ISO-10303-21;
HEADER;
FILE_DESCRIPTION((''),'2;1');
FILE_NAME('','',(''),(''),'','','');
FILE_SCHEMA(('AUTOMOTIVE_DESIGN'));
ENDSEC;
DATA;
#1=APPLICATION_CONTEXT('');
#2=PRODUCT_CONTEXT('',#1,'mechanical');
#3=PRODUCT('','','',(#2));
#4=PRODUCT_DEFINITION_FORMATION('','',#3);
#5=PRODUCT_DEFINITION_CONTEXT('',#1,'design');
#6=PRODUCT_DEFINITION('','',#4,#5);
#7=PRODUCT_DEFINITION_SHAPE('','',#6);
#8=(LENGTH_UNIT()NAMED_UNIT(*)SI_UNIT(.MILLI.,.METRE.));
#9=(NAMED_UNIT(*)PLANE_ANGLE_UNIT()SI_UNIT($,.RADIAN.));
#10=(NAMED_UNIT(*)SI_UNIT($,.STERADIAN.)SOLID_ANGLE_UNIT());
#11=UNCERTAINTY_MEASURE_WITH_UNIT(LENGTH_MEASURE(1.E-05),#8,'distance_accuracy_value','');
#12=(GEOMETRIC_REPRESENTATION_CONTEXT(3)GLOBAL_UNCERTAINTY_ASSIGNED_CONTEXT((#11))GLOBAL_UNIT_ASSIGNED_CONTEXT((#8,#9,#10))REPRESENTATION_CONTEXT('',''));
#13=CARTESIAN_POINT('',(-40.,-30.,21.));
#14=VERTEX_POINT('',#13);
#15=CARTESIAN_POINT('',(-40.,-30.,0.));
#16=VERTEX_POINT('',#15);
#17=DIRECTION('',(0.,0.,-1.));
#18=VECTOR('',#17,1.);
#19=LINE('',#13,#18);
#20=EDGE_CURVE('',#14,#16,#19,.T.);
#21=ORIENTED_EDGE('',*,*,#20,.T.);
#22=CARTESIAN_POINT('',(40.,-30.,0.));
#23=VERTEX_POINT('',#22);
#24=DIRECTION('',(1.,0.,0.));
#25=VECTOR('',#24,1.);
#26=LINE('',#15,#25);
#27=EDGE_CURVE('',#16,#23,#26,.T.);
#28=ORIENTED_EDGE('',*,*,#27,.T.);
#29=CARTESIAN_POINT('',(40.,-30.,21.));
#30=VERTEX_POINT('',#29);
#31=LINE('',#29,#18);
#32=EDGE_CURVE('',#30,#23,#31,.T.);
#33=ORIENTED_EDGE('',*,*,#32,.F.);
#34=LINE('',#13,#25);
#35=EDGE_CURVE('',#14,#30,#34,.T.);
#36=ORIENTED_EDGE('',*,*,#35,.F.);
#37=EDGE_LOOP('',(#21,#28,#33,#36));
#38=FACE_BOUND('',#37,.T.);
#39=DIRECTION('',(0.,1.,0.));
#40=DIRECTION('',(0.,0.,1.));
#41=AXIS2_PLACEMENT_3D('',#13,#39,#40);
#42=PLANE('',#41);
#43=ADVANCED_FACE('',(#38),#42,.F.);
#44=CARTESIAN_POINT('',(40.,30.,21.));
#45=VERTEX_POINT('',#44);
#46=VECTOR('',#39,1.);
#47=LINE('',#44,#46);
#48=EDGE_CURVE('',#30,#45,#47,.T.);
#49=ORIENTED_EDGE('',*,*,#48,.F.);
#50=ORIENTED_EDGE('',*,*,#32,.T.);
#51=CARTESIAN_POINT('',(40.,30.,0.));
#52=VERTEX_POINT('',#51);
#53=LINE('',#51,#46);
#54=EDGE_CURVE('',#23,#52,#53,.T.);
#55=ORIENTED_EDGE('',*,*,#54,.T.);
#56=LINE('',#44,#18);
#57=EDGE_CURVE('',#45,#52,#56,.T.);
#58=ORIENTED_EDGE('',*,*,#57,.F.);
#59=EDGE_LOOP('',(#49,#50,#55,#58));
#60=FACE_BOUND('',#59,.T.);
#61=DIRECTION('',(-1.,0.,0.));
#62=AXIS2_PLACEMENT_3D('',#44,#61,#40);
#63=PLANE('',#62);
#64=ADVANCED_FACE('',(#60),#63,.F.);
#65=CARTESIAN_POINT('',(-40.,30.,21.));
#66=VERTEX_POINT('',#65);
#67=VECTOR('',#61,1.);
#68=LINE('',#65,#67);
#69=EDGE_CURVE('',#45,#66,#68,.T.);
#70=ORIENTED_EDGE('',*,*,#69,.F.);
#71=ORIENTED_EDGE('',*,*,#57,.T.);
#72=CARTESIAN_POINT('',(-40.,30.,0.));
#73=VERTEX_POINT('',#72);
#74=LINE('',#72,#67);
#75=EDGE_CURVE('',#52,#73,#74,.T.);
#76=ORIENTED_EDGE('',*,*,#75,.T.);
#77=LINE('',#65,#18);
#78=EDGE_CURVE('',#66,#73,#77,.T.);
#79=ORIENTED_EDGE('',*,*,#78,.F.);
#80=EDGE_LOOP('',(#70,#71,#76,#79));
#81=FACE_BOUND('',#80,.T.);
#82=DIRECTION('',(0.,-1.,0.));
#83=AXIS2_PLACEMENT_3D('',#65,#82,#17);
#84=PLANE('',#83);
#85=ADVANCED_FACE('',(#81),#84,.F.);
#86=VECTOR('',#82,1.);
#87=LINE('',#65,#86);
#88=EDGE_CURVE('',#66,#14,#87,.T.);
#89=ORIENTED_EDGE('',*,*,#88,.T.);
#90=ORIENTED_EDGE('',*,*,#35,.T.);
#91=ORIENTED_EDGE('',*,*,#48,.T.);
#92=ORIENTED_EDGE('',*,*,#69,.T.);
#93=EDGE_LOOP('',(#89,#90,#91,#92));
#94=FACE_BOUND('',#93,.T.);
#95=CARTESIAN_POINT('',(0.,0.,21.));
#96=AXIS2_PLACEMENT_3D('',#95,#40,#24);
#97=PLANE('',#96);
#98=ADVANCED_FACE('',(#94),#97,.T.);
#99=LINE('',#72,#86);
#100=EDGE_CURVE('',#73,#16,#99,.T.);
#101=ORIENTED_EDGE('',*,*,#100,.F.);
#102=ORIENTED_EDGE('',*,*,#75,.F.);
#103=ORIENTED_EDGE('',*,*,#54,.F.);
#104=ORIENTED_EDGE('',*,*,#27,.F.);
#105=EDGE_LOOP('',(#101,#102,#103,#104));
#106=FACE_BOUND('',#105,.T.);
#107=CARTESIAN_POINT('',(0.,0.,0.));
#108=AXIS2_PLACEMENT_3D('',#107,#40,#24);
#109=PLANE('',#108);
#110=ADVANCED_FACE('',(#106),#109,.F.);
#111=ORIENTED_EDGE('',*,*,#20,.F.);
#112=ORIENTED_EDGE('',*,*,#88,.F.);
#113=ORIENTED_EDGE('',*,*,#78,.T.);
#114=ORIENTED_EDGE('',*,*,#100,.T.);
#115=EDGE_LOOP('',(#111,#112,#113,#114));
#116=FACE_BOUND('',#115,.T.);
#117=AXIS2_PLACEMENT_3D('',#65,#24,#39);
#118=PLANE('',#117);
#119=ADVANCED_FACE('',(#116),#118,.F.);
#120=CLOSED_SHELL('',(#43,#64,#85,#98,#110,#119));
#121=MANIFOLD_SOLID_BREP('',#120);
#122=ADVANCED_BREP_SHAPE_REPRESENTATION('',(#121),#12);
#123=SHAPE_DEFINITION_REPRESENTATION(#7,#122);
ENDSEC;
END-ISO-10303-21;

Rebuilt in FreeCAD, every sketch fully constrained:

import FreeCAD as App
import Part
import Sketcher


def add_polygon(sketch, points):
    """Adds a closed chain of lines whose ends are joined by coincident constraints."""
    first, n = sketch.GeometryCount, len(points)
    for a, b in zip(points, points[1:] + points[:1]):
        sketch.addGeometry(Part.LineSegment(App.Vector(*a, 0), App.Vector(*b, 0)), False)
    for i in range(n):
        sketch.addConstraint(Sketcher.Constraint("Coincident", first + i, 2, first + (i + 1) % n, 1))

doc = App.newDocument("Part")
body = doc.addObject("PartDesign::Body", "Body")

sketch1 = body.newObject("Sketcher::SketchObject", "Sketch")
sketch1.AttachmentSupport = (doc.getObject("XY_Plane"), [""])
sketch1.MapMode = "FlatFace"
add_polygon(sketch1, [(-40, 30), (-40, -30), (40, -30), (40, 30)])
sketch1.addConstraint(Sketcher.Constraint("Vertical", 0))
sketch1.addConstraint(Sketcher.Constraint("Horizontal", 1))
sketch1.addConstraint(Sketcher.Constraint("Vertical", 2))
sketch1.addConstraint(Sketcher.Constraint("Horizontal", 3))
sketch1.addConstraint(Sketcher.Constraint("Symmetric", 0, 2, 2, 2, -1, 1))
sketch1.addConstraint(Sketcher.Constraint("DistanceX", 1, 1, 1, 2, 80.0))
sketch1.addConstraint(Sketcher.Constraint("DistanceY", 0, 2, 0, 1, 60.0))
pad1 = body.newObject("PartDesign::Pad", "Pad")
pad1.Profile = sketch1
pad1.Length = 21

doc.recompute()
